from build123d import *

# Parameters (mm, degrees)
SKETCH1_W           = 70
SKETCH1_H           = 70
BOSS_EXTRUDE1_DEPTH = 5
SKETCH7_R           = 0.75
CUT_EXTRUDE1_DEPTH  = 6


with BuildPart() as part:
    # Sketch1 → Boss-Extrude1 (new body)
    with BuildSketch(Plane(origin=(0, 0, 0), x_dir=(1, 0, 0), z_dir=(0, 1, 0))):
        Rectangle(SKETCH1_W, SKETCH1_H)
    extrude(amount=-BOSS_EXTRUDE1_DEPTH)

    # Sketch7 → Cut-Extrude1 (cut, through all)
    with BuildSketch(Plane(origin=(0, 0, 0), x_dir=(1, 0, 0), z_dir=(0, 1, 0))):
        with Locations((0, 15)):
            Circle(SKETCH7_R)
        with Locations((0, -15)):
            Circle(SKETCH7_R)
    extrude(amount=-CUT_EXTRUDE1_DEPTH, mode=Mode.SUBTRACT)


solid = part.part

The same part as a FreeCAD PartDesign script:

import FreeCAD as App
import Part
import Sketcher
from FreeCAD import Vector
Q = App.Units.Quantity

doc = App.newDocument("Part")
body = doc.addObject("PartDesign::Body", "Body")

# Sketch on XZ plane
sketch1 = body.newObject("Sketcher::SketchObject", "Sketch")
sketch1.AttachmentSupport = (doc.getObject("XZ_Plane"), [""])
sketch1.MapMode = "FlatFace"
sketch1.addGeometry([
    Part.LineSegment(Vector(-35, -35, 0), Vector(-35, 35, 0)),
    Part.LineSegment(Vector(-35, 35, 0), Vector(35, 35, 0)),
    Part.LineSegment(Vector(35, 35, 0), Vector(35, -35, 0)),
    Part.LineSegment(Vector(35, -35, 0), Vector(-35, -35, 0)),
], False)
sketch1.addConstraint([
    Sketcher.Constraint("Coincident", 0, 2, 1, 1),
    Sketcher.Constraint("Coincident", 1, 2, 2, 1),
    Sketcher.Constraint("Coincident", 2, 2, 3, 1),
    Sketcher.Constraint("Coincident", 3, 2, 0, 1),
    Sketcher.Constraint("Vertical", 0),
    Sketcher.Constraint("Horizontal", 1),
    Sketcher.Constraint("Vertical", 2),
    Sketcher.Constraint("Horizontal", 3),
    Sketcher.Constraint("Symmetric", 0, 2, 2, 2, -1, 1),
    Sketcher.Constraint("Equal", 3, 0),
    Sketcher.Constraint("DistanceX", 1, 1, 1, 2, Q("70 mm")),
])
pad1 = body.newObject("PartDesign::Pad", "Pad")
pad1.Profile = sketch1
pad1.Length = 5

# Sketch on XZ plane
sketch2 = body.newObject("Sketcher::SketchObject", "Sketch001")
sketch2.AttachmentSupport = (doc.getObject("XZ_Plane"), [""])
sketch2.MapMode = "FlatFace"
sketch2.addGeometry([
    Part.Circle(Vector(0, -15, 0), Vector(0, 0, 1), 0.8),
    Part.Circle(Vector(0, 15, 0), Vector(0, 0, 1), 0.8),
], False)
sketch2.addConstraint([
    Sketcher.Constraint("Equal", 0, 1),
    Sketcher.Constraint("Symmetric", 0, 3, 1, 3, -1, 1),
    Sketcher.Constraint("PointOnObject", 0, 3, -2),
    Sketcher.Constraint("Diameter", 0, Q("1.5 mm")),
    Sketcher.Constraint("DistanceY", 0, 3, -1, 1, Q("15 mm")),
])
pocket1 = body.newObject("PartDesign::Pocket", "Pocket")
pocket1.Profile = sketch2
pocket1.Type = "ThroughAll"
pocket1.Reversed = True

doc.recompute()
